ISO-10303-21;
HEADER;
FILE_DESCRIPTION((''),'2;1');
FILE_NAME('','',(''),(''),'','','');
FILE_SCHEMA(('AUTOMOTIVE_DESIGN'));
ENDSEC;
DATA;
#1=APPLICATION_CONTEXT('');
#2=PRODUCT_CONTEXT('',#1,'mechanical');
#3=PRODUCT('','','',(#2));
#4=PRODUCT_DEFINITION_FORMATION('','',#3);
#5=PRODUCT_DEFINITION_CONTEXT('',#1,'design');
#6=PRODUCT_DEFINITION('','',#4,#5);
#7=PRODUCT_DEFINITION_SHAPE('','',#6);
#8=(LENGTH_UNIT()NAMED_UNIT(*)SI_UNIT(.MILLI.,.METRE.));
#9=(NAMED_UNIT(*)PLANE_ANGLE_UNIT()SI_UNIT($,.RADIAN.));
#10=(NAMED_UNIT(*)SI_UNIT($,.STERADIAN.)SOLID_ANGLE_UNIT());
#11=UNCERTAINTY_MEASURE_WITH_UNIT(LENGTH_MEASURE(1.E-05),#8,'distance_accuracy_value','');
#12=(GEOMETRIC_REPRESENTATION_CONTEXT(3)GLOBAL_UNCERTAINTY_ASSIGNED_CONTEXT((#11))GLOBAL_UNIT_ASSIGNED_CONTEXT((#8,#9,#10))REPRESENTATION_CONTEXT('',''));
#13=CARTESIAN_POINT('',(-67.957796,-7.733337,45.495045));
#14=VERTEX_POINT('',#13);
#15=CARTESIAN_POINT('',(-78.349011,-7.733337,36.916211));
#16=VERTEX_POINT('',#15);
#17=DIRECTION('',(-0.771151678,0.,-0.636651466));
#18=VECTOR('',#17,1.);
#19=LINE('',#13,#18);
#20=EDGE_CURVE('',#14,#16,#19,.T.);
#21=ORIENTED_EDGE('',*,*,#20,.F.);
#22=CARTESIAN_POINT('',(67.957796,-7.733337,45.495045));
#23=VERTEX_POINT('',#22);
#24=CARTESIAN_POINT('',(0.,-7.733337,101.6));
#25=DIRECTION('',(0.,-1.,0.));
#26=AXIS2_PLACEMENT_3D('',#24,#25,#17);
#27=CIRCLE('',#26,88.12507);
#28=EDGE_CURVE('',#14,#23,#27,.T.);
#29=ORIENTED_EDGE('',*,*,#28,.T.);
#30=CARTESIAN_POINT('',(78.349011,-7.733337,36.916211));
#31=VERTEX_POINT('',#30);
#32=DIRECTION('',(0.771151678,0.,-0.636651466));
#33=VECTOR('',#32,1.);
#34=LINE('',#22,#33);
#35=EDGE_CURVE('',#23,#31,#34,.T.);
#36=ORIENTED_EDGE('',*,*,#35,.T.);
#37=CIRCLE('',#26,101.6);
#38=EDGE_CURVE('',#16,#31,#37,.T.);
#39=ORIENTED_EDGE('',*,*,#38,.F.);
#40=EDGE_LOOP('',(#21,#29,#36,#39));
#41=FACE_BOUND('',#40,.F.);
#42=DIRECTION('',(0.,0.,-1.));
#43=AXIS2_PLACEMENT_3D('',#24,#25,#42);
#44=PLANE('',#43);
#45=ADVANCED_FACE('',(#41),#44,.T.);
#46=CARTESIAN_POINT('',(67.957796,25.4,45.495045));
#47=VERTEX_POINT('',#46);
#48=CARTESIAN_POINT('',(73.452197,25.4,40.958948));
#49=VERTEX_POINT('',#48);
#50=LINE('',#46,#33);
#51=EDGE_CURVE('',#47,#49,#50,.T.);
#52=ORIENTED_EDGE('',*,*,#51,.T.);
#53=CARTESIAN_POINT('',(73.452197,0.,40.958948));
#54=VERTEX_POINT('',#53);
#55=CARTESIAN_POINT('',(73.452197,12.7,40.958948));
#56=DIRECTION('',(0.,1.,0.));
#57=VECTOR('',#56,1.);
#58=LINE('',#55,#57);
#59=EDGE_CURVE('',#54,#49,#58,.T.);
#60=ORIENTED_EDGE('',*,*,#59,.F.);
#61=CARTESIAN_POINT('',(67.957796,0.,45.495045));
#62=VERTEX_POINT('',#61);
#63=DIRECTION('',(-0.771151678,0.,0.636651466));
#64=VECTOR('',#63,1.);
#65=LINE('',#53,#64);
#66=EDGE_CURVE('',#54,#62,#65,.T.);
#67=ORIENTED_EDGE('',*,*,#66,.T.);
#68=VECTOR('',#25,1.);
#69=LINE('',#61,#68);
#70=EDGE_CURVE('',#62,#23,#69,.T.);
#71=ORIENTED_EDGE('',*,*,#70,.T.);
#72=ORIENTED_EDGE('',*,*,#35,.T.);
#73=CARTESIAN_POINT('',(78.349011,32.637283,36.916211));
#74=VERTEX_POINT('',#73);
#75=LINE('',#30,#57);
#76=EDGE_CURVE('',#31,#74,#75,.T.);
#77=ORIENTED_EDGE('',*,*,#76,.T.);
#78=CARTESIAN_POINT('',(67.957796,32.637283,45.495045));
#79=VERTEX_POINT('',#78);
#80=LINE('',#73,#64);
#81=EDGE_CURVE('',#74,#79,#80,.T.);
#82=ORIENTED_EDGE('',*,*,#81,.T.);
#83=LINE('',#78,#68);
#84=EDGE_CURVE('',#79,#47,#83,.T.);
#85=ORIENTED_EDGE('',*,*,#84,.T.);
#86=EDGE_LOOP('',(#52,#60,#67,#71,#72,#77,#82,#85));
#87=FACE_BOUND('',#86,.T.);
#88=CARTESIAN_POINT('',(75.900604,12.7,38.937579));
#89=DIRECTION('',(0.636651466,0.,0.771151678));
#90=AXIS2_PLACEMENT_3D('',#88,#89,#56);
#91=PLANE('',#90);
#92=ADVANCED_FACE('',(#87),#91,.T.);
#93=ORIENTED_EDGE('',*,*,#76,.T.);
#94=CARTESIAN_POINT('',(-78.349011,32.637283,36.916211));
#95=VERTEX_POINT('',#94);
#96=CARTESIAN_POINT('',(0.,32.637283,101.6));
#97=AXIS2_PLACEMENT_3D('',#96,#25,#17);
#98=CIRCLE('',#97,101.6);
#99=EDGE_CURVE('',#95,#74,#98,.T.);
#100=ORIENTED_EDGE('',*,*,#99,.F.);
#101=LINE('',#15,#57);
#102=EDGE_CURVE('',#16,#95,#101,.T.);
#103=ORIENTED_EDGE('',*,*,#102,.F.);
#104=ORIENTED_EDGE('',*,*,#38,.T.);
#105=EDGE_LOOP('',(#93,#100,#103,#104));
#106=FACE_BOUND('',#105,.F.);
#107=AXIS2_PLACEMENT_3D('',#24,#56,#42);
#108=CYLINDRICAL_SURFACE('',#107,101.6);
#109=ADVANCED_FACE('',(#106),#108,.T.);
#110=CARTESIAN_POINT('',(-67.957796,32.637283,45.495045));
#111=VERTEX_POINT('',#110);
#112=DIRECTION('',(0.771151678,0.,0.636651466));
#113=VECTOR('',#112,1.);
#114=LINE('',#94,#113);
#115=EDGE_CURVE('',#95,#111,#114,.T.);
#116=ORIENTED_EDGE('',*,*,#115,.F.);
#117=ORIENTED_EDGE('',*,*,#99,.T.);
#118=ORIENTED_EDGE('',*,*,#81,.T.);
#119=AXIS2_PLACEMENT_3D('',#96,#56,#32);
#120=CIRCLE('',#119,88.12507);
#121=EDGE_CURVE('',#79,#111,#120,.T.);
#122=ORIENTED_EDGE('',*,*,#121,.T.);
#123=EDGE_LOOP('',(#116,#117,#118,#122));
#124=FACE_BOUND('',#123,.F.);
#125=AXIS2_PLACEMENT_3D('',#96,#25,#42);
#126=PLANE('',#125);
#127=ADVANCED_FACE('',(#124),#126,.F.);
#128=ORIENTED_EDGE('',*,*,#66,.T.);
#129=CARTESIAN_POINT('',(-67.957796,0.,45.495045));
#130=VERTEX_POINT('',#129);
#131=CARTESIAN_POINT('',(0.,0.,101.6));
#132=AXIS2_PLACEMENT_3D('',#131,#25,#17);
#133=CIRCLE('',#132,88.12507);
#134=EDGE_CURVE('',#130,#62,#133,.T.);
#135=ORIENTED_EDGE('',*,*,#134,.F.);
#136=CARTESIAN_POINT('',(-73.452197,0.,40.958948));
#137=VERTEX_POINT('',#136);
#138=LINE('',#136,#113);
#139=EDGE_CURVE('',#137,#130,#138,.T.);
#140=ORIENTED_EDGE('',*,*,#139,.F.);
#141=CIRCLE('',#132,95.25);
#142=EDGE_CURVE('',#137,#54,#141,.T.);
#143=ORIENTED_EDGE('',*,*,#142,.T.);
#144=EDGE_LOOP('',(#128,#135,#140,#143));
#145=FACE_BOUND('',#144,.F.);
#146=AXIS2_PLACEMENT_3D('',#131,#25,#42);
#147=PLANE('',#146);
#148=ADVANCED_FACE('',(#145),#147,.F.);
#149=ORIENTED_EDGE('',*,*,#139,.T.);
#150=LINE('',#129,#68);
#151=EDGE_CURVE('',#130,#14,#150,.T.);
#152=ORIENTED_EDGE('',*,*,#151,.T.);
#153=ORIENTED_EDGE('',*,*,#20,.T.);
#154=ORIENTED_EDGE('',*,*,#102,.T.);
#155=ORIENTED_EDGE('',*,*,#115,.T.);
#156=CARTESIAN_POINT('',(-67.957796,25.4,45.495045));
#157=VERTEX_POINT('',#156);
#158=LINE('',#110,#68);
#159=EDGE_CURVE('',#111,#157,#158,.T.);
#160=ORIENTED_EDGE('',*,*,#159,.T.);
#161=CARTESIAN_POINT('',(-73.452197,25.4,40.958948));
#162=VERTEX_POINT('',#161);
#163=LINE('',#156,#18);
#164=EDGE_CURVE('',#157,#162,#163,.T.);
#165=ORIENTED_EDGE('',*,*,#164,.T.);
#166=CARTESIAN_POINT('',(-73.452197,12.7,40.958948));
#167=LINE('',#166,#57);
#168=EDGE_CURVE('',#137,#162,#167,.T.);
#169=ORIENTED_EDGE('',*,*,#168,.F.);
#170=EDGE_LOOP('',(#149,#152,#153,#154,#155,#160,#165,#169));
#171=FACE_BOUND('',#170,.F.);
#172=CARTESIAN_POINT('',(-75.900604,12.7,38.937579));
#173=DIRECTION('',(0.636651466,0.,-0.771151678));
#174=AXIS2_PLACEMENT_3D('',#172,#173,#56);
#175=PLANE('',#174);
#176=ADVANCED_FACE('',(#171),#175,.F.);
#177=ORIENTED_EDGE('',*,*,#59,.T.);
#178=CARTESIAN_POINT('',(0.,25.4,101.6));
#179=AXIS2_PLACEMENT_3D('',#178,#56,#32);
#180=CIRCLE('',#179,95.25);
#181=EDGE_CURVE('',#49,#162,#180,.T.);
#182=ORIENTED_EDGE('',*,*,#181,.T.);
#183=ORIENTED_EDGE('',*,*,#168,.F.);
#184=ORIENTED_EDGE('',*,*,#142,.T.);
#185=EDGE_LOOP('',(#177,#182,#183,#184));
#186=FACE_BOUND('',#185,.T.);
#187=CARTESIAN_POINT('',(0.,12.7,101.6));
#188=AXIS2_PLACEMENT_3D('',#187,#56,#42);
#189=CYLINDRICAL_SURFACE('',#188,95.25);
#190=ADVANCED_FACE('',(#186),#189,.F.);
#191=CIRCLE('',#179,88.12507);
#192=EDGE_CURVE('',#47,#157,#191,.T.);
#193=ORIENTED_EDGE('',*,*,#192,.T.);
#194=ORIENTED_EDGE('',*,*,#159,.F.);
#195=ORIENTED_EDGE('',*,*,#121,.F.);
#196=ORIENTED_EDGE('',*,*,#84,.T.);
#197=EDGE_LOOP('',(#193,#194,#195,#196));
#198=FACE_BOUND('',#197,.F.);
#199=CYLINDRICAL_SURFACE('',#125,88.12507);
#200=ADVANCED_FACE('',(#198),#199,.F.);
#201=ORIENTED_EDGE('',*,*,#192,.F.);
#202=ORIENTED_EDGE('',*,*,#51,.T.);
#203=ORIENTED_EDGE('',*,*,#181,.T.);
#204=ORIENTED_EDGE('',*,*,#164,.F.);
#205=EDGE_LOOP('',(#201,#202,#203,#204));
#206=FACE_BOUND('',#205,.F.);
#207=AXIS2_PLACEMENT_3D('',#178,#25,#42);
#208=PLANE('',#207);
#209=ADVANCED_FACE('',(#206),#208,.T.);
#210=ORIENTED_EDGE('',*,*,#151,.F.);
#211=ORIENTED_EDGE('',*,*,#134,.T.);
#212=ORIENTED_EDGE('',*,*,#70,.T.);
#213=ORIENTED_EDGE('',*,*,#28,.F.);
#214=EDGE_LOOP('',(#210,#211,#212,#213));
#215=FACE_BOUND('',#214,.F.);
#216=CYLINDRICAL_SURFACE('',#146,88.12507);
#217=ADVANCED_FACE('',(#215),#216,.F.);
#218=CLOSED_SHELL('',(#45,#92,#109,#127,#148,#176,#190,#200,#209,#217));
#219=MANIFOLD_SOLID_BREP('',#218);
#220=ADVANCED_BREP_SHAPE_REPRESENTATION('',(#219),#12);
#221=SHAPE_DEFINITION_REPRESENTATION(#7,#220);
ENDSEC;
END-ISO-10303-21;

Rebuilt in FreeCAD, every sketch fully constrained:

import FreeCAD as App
import Part
import Sketcher
from FreeCAD import Vector
Q = App.Units.Quantity

doc = App.newDocument("Part")
body = doc.addObject("PartDesign::Body", "Body")

sketch1 = body.newObject("Sketcher::SketchObject", "Sketch")
sketch1.AttachmentSupport = (doc.getObject("YZ_Plane"), [""])
sketch1.MapMode = "FlatFace"
sketch1.addGeometry([
    Part.LineSegment(Vector(25, 6, 0), Vector(0, 6, 0)),
    Part.LineSegment(Vector(0, 6, 0), Vector(0, 13, 0)),
    Part.LineSegment(Vector(0, 13, 0), Vector(-8, 13, 0)),
    Part.LineSegment(Vector(-8, 13, 0), Vector(-8, 0, 0)),
    Part.LineSegment(Vector(-8, 0, 0), Vector(33, 0, 0)),
    Part.LineSegment(Vector(33, 0, 0), Vector(33, 13, 0)),
    Part.LineSegment(Vector(33, 13, 0), Vector(25, 13, 0)),
    Part.LineSegment(Vector(25, 13, 0), Vector(25, 6, 0)),
], False)
sketch1.addGeometry(Part.LineSegment(Vector(-8, 102, 0), Vector(33, 102, 0)), True)
sketch1.addConstraint([
    Sketcher.Constraint("Coincident", 0, 2, 1, 1),
    Sketcher.Constraint("Coincident", 1, 2, 2, 1),
    Sketcher.Constraint("Coincident", 2, 2, 3, 1),
    Sketcher.Constraint("Coincident", 3, 2, 4, 1),
    Sketcher.Constraint("Coincident", 4, 2, 5, 1),
    Sketcher.Constraint("Coincident", 5, 2, 6, 1),
    Sketcher.Constraint("Coincident", 6, 2, 7, 1),
    Sketcher.Constraint("Coincident", 7, 2, 0, 1),
    Sketcher.Constraint("Horizontal", 0),
    Sketcher.Constraint("Vertical", 1),
    Sketcher.Constraint("Horizontal", 2),
    Sketcher.Constraint("Vertical", 3),
    Sketcher.Constraint("Horizontal", 4),
    Sketcher.Constraint("Vertical", 5),
    Sketcher.Constraint("Horizontal", 6),
    Sketcher.Constraint("Vertical", 7),
    Sketcher.Constraint("Horizontal", 8),
    Sketcher.Constraint("PointOnObject", 0, 2, -2),
    Sketcher.Constraint("PointOnObject", 3, 2, -1),
    Sketcher.Constraint("Horizontal", 2, 2, 5, 2),
    Sketcher.Constraint("Vertical", 3, 2, 8, 1),
    Sketcher.Constraint("Vertical", 5, 2, 8, 2),
    Sketcher.Constraint("DistanceX", 0, 2, 0, 1, Q("1 in")),
    Sketcher.Constraint("DistanceY", -1, 1, 8, 1, Q("4 in")),
    Sketcher.Constraint("DistanceY", -1, 1, 0, 2, Q("0.25 in")),
    Sketcher.Constraint("DistanceX", 4, 1, 4, 2, Q("40.37062 mm")),
    Sketcher.Constraint("DistanceY", 1, 1, 1, 2, Q("7.12493 mm")),
    Sketcher.Constraint("DistanceX", 2, 2, 2, 1, Q("7.733337 mm")),
])
revolution = body.newObject("PartDesign::Revolution", "Revolution")
revolution.Profile = sketch1
revolution.ReferenceAxis = (sketch1, ["Axis0"])
revolution.Angle = 50.457422

sketch2 = body.newObject("Sketcher::SketchObject", "Sketch001")
sketch2.AttachmentSupport = (doc.getObject("YZ_Plane"), [""])
sketch2.MapMode = "FlatFace"
sketch2.addGeometry([
    Part.LineSegment(Vector(25, 6, 0), Vector(0, 6, 0)),
    Part.LineSegment(Vector(0, 6, 0), Vector(0, 13, 0)),
    Part.LineSegment(Vector(0, 13, 0), Vector(-8, 13, 0)),
    Part.LineSegment(Vector(-8, 13, 0), Vector(-8, 0, 0)),
    Part.LineSegment(Vector(-8, 0, 0), Vector(33, 0, 0)),
    Part.LineSegment(Vector(33, 0, 0), Vector(33, 13, 0)),
    Part.LineSegment(Vector(33, 13, 0), Vector(25, 13, 0)),
    Part.LineSegment(Vector(25, 13, 0), Vector(25, 6, 0)),
], False)
sketch2.addGeometry(Part.LineSegment(Vector(33, 102, 0), Vector(-8, 102, 0)), True)
sketch2.addConstraint([
    Sketcher.Constraint("Coincident", 0, 2, 1, 1),
    Sketcher.Constraint("Coincident", 1, 2, 2, 1),
    Sketcher.Constraint("Coincident", 2, 2, 3, 1),
    Sketcher.Constraint("Coincident", 3, 2, 4, 1),
    Sketcher.Constraint("Coincident", 4, 2, 5, 1),
    Sketcher.Constraint("Coincident", 5, 2, 6, 1),
    Sketcher.Constraint("Coincident", 6, 2, 7, 1),
    Sketcher.Constraint("Coincident", 7, 2, 0, 1),
    Sketcher.Constraint("Horizontal", 0),
    Sketcher.Constraint("Vertical", 1),
    Sketcher.Constraint("Horizontal", 2),
    Sketcher.Constraint("Vertical", 3),
    Sketcher.Constraint("Horizontal", 4),
    Sketcher.Constraint("Vertical", 5),
    Sketcher.Constraint("Horizontal", 6),
    Sketcher.Constraint("Vertical", 7),
    Sketcher.Constraint("Horizontal", 8),
    Sketcher.Constraint("PointOnObject", 0, 2, -2),
    Sketcher.Constraint("PointOnObject", 3, 2, -1),
    Sketcher.Constraint("Horizontal", 2, 2, 5, 2),
    Sketcher.Constraint("Vertical", 5, 2, 8, 1),
    Sketcher.Constraint("Vertical", 3, 2, 8, 2),
    Sketcher.Constraint("DistanceX", 0, 2, 0, 1, Q("1 in")),
    Sketcher.Constraint("DistanceY", -1, 1, 8, 1, Q("4 in")),
    Sketcher.Constraint("DistanceY", -1, 1, 0, 2, Q("0.25 in")),
    Sketcher.Constraint("DistanceX", 4, 1, 4, 2, Q("40.37062 mm")),
    Sketcher.Constraint("DistanceY", 1, 1, 1, 2, Q("7.12493 mm")),
    Sketcher.Constraint("DistanceX", 2, 2, 2, 1, Q("7.733337 mm")),
])
revolution2 = body.newObject("PartDesign::Revolution", "Revolution001")
revolution2.Profile = sketch2
revolution2.ReferenceAxis = (sketch2, ["Axis0"])
revolution2.Angle = 50.457422

doc.recompute()
